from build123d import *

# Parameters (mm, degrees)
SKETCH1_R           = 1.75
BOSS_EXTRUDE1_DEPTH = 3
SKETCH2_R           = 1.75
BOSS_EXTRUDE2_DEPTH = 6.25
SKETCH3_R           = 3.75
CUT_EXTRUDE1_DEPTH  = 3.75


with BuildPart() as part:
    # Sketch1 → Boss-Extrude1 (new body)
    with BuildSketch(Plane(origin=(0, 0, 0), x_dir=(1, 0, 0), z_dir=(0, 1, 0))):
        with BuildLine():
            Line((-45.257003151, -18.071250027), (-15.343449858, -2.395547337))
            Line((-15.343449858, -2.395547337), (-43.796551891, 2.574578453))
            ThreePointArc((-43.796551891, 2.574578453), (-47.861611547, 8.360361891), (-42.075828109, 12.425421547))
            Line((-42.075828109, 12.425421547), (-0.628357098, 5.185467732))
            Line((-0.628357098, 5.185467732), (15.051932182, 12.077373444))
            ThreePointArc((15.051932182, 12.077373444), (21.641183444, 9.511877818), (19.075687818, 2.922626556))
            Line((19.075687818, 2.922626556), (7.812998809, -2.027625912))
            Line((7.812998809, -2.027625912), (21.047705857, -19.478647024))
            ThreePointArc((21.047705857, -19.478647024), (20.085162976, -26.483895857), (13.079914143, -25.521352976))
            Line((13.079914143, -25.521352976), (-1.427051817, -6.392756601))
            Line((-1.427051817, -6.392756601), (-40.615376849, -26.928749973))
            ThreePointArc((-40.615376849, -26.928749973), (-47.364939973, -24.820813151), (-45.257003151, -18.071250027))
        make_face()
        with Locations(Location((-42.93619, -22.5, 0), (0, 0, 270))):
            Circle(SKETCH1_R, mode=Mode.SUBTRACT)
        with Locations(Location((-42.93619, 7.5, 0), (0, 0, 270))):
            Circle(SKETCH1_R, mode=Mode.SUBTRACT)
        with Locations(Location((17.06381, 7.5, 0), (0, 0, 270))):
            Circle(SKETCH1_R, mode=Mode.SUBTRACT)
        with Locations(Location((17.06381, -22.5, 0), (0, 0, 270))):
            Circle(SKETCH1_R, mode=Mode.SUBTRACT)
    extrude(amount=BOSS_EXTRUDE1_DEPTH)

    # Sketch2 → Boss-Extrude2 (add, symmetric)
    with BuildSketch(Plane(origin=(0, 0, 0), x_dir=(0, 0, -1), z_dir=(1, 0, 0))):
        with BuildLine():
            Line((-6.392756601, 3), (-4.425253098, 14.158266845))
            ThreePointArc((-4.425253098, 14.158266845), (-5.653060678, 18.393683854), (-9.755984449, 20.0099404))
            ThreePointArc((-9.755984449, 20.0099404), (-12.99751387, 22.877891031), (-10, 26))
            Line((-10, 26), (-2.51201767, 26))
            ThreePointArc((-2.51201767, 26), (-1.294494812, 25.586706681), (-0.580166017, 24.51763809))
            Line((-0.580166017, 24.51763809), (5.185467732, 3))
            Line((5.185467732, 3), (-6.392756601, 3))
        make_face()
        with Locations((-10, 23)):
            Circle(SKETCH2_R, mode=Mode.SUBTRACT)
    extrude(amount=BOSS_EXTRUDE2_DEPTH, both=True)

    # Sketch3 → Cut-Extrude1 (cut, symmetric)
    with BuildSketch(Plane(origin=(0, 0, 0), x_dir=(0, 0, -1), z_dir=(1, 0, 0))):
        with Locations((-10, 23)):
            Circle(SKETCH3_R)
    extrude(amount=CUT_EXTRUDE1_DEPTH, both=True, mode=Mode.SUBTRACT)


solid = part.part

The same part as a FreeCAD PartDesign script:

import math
import FreeCAD as App
import Part
import Sketcher
from FreeCAD import Vector
Q = App.Units.Quantity

doc = App.newDocument("Part")
body = doc.addObject("PartDesign::Body", "Body")

sketch1 = body.newObject("Sketcher::SketchObject", "Sketch")
sketch1.AttachmentSupport = (doc.getObject("XZ_Plane"), [""])
sketch1.MapMode = "FlatFace"
sketch1.addGeometry(Part.LineSegment(Vector(-15.3, 2.4, 0), Vector(-45.3, 18.1, 0)), False)
sketch1.addGeometry(Part.ArcOfCircle(Part.Circle(Vector(-42.9, 22.5, 0), Vector(0, 0, 1), 5), math.radians(62), math.radians(242)), False)
sketch1.addGeometry(Part.LineSegment(Vector(-40.6, 26.9, 0), Vector(-1.4, 6.4, 0)), False)
sketch1.addGeometry(Part.LineSegment(Vector(-1.4, 6.4, 0), Vector(13.1, 25.5, 0)), False)
sketch1.addGeometry(Part.ArcOfCircle(Part.Circle(Vector(17.1, 22.5, 0), Vector(0, 0, 1), 5), math.radians(-37), math.radians(143)), False)
sketch1.addGeometry(Part.LineSegment(Vector(21, 19.5, 0), Vector(7.8, 2, 0)), False)
sketch1.addGeometry(Part.LineSegment(Vector(7.8, 2, 0), Vector(19.1, -2.9, 0)), False)
sketch1.addGeometry(Part.ArcOfCircle(Part.Circle(Vector(17.1, -7.5, 0), Vector(0, 0, 1), 5), math.radians(-114), math.radians(66)), False)
sketch1.addGeometry(Part.LineSegment(Vector(15.1, -12.1, 0), Vector(-0.6, -5.2, 0)), False)
sketch1.addGeometry(Part.LineSegment(Vector(-0.6, -5.2, 0), Vector(-42.1, -12.4, 0)), False)
sketch1.addGeometry(Part.ArcOfCircle(Part.Circle(Vector(-42.9, -7.5, 0), Vector(0, 0, 1), 5), math.radians(100), math.radians(280)), False)
sketch1.addGeometry(Part.LineSegment(Vector(-43.8, -2.6, 0), Vector(-15.3, 2.4, 0)), False)
sketch1.addGeometry(Part.Circle(Vector(17.1, 22.5, 0), Vector(0, 0, 1), 1.8), False)
sketch1.addGeometry(Part.Circle(Vector(-42.9, 22.5, 0), Vector(0, 0, 1), 1.8), False)
sketch1.addGeometry(Part.Circle(Vector(17.1, -7.5, 0), Vector(0, 0, 1), 1.8), False)
sketch1.addGeometry(Part.Circle(Vector(-42.9, -7.5, 0), Vector(0, 0, 1), 1.8), False)
sketch1.addConstraint(Sketcher.Constraint("Tangent", 0, 2, 1, 2))
sketch1.addConstraint(Sketcher.Constraint("Tangent", 1, 1, 2, 1))
sketch1.addConstraint(Sketcher.Constraint("Coincident", 2, 2, 3, 1))
sketch1.addConstraint(Sketcher.Constraint("Tangent", 3, 2, 4, 2))
sketch1.addConstraint(Sketcher.Constraint("Tangent", 4, 1, 5, 1))
sketch1.addConstraint(Sketcher.Constraint("Coincident", 5, 2, 6, 1))
sketch1.addConstraint(Sketcher.Constraint("Tangent", 6, 2, 7, 2))
sketch1.addConstraint(Sketcher.Constraint("Tangent", 7, 1, 8, 1))
sketch1.addConstraint(Sketcher.Constraint("Coincident", 8, 2, 9, 1))
sketch1.addConstraint(Sketcher.Constraint("Tangent", 9, 2, 10, 2))
sketch1.addConstraint(Sketcher.Constraint("Tangent", 10, 1, 11, 1))
sketch1.addConstraint(Sketcher.Constraint("Coincident", 11, 2, 0, 1))
sketch1.addConstraint(Sketcher.Constraint("Coincident", 12, 3, 4, 3))
sketch1.addConstraint(Sketcher.Constraint("Coincident", 13, 3, 1, 3))
sketch1.addConstraint(Sketcher.Constraint("Coincident", 14, 3, 7, 3))
sketch1.addConstraint(Sketcher.Constraint("Coincident", 15, 3, 10, 3))
sketch1.addConstraint(Sketcher.Constraint("Equal", 1, 4))
sketch1.addConstraint(Sketcher.Constraint("Equal", 4, 7))
sketch1.addConstraint(Sketcher.Constraint("Equal", 7, 10))
sketch1.addConstraint(Sketcher.Constraint("Equal", 12, 13))
sketch1.addConstraint(Sketcher.Constraint("Equal", 13, 14))
sketch1.addConstraint(Sketcher.Constraint("Equal", 14, 15))
sketch1.addConstraint(Sketcher.Constraint("Parallel", 0, 2))
sketch1.addConstraint(Sketcher.Constraint("Parallel", 3, 5))
sketch1.addConstraint(Sketcher.Constraint("Parallel", 6, 8))
sketch1.addConstraint(Sketcher.Constraint("Parallel", 9, 11))
sketch1.addConstraint(Sketcher.Constraint("Horizontal", 1, 3, 4, 3))
sketch1.addConstraint(Sketcher.Constraint("Horizontal", 7, 3, 10, 3))
sketch1.addConstraint(Sketcher.Constraint("Vertical", 4, 3, 7, 3))
sketch1.addConstraint(Sketcher.Constraint("Vertical", 1, 3, 10, 3))
sketch1.addConstraint(Sketcher.Constraint("Radius", 1, Q("5 mm")))
sketch1.addConstraint(Sketcher.Constraint("Diameter", 12, Q("3.5 mm")))
sketch1.addConstraint(Sketcher.Constraint("DistanceX", 1, 3, 4, 3, Q("60 mm")))
sketch1.addConstraint(Sketcher.Constraint("DistanceY", 7, 3, 4, 3, Q("30 mm")))
sketch1.addConstraint(Sketcher.Constraint("DistanceY", -1, 1, 1, 3, Q("22.5 mm")))
sketch1.addConstraint(Sketcher.Constraint("DistanceX", -1, 1, 5, 2, Q("7.812999 mm")))
sketch1.addConstraint(Sketcher.Constraint("DistanceY", 7, 1, 5, 2, Q("14.104999 mm")))
sketch1.addConstraint(Sketcher.Constraint("Distance", 2, Q("44.243099 mm")))
sketch1.addConstraint(Sketcher.Constraint("Distance", 3, Q("24.0074 mm")))
sketch1.addConstraint(Sketcher.Constraint("DistanceX", 11, 2, 2, 2, Q("13.916398 mm")))
pad1 = body.newObject("PartDesign::Pad", "Pad")
pad1.Profile = sketch1
pad1.Length = 3
pad1.Reversed = True

sketch2 = body.newObject("Sketcher::SketchObject", "Sketch001")
sketch2.AttachmentSupport = (doc.getObject("YZ_Plane"), [""])
sketch2.MapMode = "FlatFace"
sketch2.addGeometry(Part.LineSegment(Vector(14.2, 4.4, 0), Vector(3, 6.4, 0)), False)
sketch2.addGeometry(Part.LineSegment(Vector(3, 6.4, 0), Vector(3, -5.2, 0)), False)
sketch2.addGeometry(Part.LineSegment(Vector(3, -5.2, 0), Vector(24.5, 0.6, 0)), False)
sketch2.addGeometry(Part.ArcOfCircle(Part.Circle(Vector(24, 2.5, 0), Vector(0, 0, 1), 2), math.radians(-75), math.radians(0)), False)
sketch2.addGeometry(Part.LineSegment(Vector(26, 2.5, 0), Vector(26, 10, 0)), False)
sketch2.addGeometry(Part.ArcOfCircle(Part.Circle(Vector(23, 10, 0), Vector(0, 0, 1), 3), math.radians(0), math.radians(185)), False)
sketch2.addGeometry(Part.ArcOfCircle(Part.Circle(Vector(15, 9.3, 0), Vector(0, 0, 1), 5), math.radians(-100), math.radians(5)), False)
sketch2.addGeometry(Part.Circle(Vector(23, 10, 0), Vector(0, 0, 1), 1.8), False)
sketch2.addConstraint(Sketcher.Constraint("Coincident", 0, 2, 1, 1))
sketch2.addConstraint(Sketcher.Constraint("Coincident", 1, 2, 2, 1))
sketch2.addConstraint(Sketcher.Constraint("Tangent", 2, 2, 3, 1))
sketch2.addConstraint(Sketcher.Constraint("Tangent", 3, 2, 4, 1))
sketch2.addConstraint(Sketcher.Constraint("Tangent", 4, 2, 5, 1))
sketch2.addConstraint(Sketcher.Constraint("Tangent", 5, 2, 6, 2))
sketch2.addConstraint(Sketcher.Constraint("Tangent", 6, 1, 0, 1))
sketch2.addConstraint(Sketcher.Constraint("Vertical", 1))
sketch2.addConstraint(Sketcher.Constraint("Vertical", 4))
sketch2.addConstraint(Sketcher.Constraint("Coincident", 7, 3, 5, 3))
sketch2.addConstraint(Sketcher.Constraint("Radius", 3, Q("2 mm")))
sketch2.addConstraint(Sketcher.Constraint("Radius", 5, Q("3 mm")))
sketch2.addConstraint(Sketcher.Constraint("Radius", 6, Q("5 mm")))
sketch2.addConstraint(Sketcher.Constraint("Diameter", 7, Q("3.5 mm")))
sketch2.addConstraint(Sketcher.Constraint("Angle", 0, Q("170 deg")))
sketch2.addConstraint(Sketcher.Constraint("Angle", 2, Q("15 deg")))
sketch2.addConstraint(Sketcher.Constraint("DistanceX", -1, 1, 3, 3, Q("24 mm")))
sketch2.addConstraint(Sketcher.Constraint("DistanceY", -1, 1, 5, 3, Q("10 mm")))
sketch2.addConstraint(Sketcher.Constraint("DistanceX", -1, 1, 0, 2, Q("3 mm")))
sketch2.addConstraint(Sketcher.Constraint("Distance", 0, Q("11.330401 mm")))
sketch2.addConstraint(Sketcher.Constraint("DistanceY", 1, 2, 1, 1, Q("11.578224 mm")))
pad2 = body.newObject("PartDesign::Pad", "Pad001")
pad2.Profile = sketch2
pad2.Length = 12.5
pad2.Midplane = True

sketch3 = body.newObject("Sketcher::SketchObject", "Sketch002")
sketch3.AttachmentSupport = (doc.getObject("YZ_Plane"), [""])
sketch3.MapMode = "FlatFace"
sketch3.addGeometry(Part.Circle(Vector(23, 10, 0), Vector(0, 0, 1), 3.8), False)
sketch3.addConstraint(Sketcher.Constraint("Diameter", 0, Q("7.5 mm")))
sketch3.addConstraint(Sketcher.Constraint("DistanceX", -1, 1, 0, 3, Q("23 mm")))
sketch3.addConstraint(Sketcher.Constraint("DistanceY", -1, 1, 0, 3, Q("10 mm")))
pocket1 = body.newObject("PartDesign::Pocket", "Pocket")
pocket1.Profile = sketch3
pocket1.Length = 7.5
pocket1.Midplane = True

doc.recompute()
